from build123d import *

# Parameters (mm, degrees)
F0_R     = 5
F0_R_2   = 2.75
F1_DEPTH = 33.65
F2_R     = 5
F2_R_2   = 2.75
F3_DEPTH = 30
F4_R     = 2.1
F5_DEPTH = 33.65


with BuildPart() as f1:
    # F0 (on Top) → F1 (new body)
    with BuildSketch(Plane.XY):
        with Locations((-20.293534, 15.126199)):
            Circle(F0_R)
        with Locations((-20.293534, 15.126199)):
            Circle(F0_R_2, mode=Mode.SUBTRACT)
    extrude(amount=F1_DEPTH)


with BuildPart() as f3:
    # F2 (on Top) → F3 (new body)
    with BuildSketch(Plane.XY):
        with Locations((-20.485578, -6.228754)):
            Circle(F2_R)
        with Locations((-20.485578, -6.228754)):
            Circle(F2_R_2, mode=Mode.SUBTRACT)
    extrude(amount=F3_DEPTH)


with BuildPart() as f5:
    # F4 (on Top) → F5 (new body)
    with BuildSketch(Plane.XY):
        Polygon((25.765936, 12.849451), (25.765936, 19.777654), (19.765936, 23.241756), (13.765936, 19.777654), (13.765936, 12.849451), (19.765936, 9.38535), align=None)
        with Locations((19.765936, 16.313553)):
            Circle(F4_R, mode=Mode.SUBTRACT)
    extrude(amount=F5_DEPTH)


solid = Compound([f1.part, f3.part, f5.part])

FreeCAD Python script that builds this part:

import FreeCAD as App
import Part
import Sketcher
from FreeCAD import Vector
Q = App.Units.Quantity

doc = App.newDocument("Part")
body = doc.addObject("PartDesign::Body", "Body")

# Sketch on XY plane
sketch1 = body.newObject("Sketcher::SketchObject", "Sketch")
sketch1.AttachmentSupport = (doc.getObject("XY_Plane"), [""])
sketch1.MapMode = "FlatFace"
sketch1.addGeometry(Part.Circle(Vector(-20.293534, 15.126199, 0), Vector(0, 0, 1), 5), False)
sketch1.addGeometry(Part.Circle(Vector(-20.293534, 15.126199, 0), Vector(0, 0, 1), 2.75), False)
sketch1.addConstraint(Sketcher.Constraint("Coincident", 1, 3, 0, 3))
sketch1.addConstraint(Sketcher.Constraint("Diameter", 0, Q("10 mm")))
sketch1.addConstraint(Sketcher.Constraint("Diameter", 1, Q("5.5 mm")))
sketch1.addConstraint(Sketcher.Constraint("DistanceY", -1, 1, 0, 3, Q("15.126199 mm")))
sketch1.addConstraint(Sketcher.Constraint("DistanceX", 0, 3, -1, 1, Q("20.293534 mm")))
pad1 = body.newObject("PartDesign::Pad", "Pad")
pad1.Profile = sketch1
pad1.Length = 33.65
body2 = doc.addObject("PartDesign::Body", "Body001")

# Sketch on XY plane
sketch2 = body2.newObject("Sketcher::SketchObject", "Sketch001")
sketch2.AttachmentSupport = (doc.getObject("XY_Plane001"), [""])
sketch2.MapMode = "FlatFace"
sketch2.addGeometry(Part.Circle(Vector(-20.485578, -6.228754, 0), Vector(0, 0, 1), 5), False)
sketch2.addGeometry(Part.Circle(Vector(-20.485578, -6.228754, 0), Vector(0, 0, 1), 2.75), False)
sketch2.addConstraint(Sketcher.Constraint("Coincident", 1, 3, 0, 3))
sketch2.addConstraint(Sketcher.Constraint("Diameter", 0, Q("10 mm")))
sketch2.addConstraint(Sketcher.Constraint("Diameter", 1, Q("5.5 mm")))
sketch2.addConstraint(Sketcher.Constraint("DistanceX", 0, 3, -1, 1, Q("20.485578 mm")))
sketch2.addConstraint(Sketcher.Constraint("DistanceY", 0, 3, -1, 1, Q("6.228754 mm")))
pad2 = body2.newObject("PartDesign::Pad", "Pad001")
pad2.Profile = sketch2
pad2.Length = 30
body3 = doc.addObject("PartDesign::Body", "Body002")

# Sketch on XY plane
sketch3 = body3.newObject("Sketcher::SketchObject", "Sketch002")
sketch3.AttachmentSupport = (doc.getObject("XY_Plane002"), [""])
sketch3.MapMode = "FlatFace"
sketch3.addGeometry(Part.LineSegment(Vector(25.765936, 12.849451, 0), Vector(25.765936, 19.777654, 0)), False)
sketch3.addGeometry(Part.LineSegment(Vector(25.765936, 19.777654, 0), Vector(19.765936, 23.241756, 0)), False)
sketch3.addGeometry(Part.LineSegment(Vector(19.765936, 23.241756, 0), Vector(13.765936, 19.777654, 0)), False)
sketch3.addGeometry(Part.LineSegment(Vector(13.765936, 19.777654, 0), Vector(13.765936, 12.849451, 0)), False)
sketch3.addGeometry(Part.LineSegment(Vector(13.765936, 12.849451, 0), Vector(19.765936, 9.38535, 0)), False)
sketch3.addGeometry(Part.LineSegment(Vector(19.765936, 9.38535, 0), Vector(25.765936, 12.849451, 0)), False)
sketch3.addGeometry(Part.Circle(Vector(19.765936, 16.313553, 0), Vector(0, 0, 1), 2.1), False)
sketch3.addConstraint(Sketcher.Constraint("Coincident", 0, 2, 1, 1))
sketch3.addConstraint(Sketcher.Constraint("Coincident", 1, 2, 2, 1))
sketch3.addConstraint(Sketcher.Constraint("Coincident", 2, 2, 3, 1))
sketch3.addConstraint(Sketcher.Constraint("Coincident", 3, 2, 4, 1))
sketch3.addConstraint(Sketcher.Constraint("Coincident", 4, 2, 5, 1))
sketch3.addConstraint(Sketcher.Constraint("Coincident", 5, 2, 0, 1))
sketch3.addConstraint(Sketcher.Constraint("Vertical", 0))
sketch3.addConstraint(Sketcher.Constraint("Vertical", 3))
sketch3.addConstraint(Sketcher.Constraint("Parallel", 1, 4))
sketch3.addConstraint(Sketcher.Constraint("Parallel", 2, 5))
sketch3.addConstraint(Sketcher.Constraint("Horizontal", 0, 2, 2, 2))
sketch3.addConstraint(Sketcher.Constraint("Horizontal", 3, 2, 5, 2))
sketch3.addConstraint(Sketcher.Constraint("Vertical", 6, 3, 1, 2))
sketch3.addConstraint(Sketcher.Constraint("Vertical", 1, 2, 4, 2))
sketch3.addConstraint(Sketcher.Constraint("Diameter", 6, Q("4.2 mm")))
sketch3.addConstraint(Sketcher.Constraint("Angle", 1, Q("149.999997 deg")))
sketch3.addConstraint(Sketcher.Constraint("DistanceX", 6, 3, 0, 2, Q("6 mm")))
sketch3.addConstraint(Sketcher.Constraint("DistanceY", 6, 3, 0, 2, Q("3.464101 mm")))
sketch3.addConstraint(Sketcher.Constraint("DistanceY", 3, 2, 6, 3, Q("3.464102 mm")))
sketch3.addConstraint(Sketcher.Constraint("DistanceY", -1, 1, 3, 2, Q("12.849451 mm")))
sketch3.addConstraint(Sketcher.Constraint("DistanceX", -1, 1, 6, 3, Q("19.765936 mm")))
pad3 = body3.newObject("PartDesign::Pad", "Pad002")
pad3.Profile = sketch3
pad3.Length = 33.65

doc.recompute()
